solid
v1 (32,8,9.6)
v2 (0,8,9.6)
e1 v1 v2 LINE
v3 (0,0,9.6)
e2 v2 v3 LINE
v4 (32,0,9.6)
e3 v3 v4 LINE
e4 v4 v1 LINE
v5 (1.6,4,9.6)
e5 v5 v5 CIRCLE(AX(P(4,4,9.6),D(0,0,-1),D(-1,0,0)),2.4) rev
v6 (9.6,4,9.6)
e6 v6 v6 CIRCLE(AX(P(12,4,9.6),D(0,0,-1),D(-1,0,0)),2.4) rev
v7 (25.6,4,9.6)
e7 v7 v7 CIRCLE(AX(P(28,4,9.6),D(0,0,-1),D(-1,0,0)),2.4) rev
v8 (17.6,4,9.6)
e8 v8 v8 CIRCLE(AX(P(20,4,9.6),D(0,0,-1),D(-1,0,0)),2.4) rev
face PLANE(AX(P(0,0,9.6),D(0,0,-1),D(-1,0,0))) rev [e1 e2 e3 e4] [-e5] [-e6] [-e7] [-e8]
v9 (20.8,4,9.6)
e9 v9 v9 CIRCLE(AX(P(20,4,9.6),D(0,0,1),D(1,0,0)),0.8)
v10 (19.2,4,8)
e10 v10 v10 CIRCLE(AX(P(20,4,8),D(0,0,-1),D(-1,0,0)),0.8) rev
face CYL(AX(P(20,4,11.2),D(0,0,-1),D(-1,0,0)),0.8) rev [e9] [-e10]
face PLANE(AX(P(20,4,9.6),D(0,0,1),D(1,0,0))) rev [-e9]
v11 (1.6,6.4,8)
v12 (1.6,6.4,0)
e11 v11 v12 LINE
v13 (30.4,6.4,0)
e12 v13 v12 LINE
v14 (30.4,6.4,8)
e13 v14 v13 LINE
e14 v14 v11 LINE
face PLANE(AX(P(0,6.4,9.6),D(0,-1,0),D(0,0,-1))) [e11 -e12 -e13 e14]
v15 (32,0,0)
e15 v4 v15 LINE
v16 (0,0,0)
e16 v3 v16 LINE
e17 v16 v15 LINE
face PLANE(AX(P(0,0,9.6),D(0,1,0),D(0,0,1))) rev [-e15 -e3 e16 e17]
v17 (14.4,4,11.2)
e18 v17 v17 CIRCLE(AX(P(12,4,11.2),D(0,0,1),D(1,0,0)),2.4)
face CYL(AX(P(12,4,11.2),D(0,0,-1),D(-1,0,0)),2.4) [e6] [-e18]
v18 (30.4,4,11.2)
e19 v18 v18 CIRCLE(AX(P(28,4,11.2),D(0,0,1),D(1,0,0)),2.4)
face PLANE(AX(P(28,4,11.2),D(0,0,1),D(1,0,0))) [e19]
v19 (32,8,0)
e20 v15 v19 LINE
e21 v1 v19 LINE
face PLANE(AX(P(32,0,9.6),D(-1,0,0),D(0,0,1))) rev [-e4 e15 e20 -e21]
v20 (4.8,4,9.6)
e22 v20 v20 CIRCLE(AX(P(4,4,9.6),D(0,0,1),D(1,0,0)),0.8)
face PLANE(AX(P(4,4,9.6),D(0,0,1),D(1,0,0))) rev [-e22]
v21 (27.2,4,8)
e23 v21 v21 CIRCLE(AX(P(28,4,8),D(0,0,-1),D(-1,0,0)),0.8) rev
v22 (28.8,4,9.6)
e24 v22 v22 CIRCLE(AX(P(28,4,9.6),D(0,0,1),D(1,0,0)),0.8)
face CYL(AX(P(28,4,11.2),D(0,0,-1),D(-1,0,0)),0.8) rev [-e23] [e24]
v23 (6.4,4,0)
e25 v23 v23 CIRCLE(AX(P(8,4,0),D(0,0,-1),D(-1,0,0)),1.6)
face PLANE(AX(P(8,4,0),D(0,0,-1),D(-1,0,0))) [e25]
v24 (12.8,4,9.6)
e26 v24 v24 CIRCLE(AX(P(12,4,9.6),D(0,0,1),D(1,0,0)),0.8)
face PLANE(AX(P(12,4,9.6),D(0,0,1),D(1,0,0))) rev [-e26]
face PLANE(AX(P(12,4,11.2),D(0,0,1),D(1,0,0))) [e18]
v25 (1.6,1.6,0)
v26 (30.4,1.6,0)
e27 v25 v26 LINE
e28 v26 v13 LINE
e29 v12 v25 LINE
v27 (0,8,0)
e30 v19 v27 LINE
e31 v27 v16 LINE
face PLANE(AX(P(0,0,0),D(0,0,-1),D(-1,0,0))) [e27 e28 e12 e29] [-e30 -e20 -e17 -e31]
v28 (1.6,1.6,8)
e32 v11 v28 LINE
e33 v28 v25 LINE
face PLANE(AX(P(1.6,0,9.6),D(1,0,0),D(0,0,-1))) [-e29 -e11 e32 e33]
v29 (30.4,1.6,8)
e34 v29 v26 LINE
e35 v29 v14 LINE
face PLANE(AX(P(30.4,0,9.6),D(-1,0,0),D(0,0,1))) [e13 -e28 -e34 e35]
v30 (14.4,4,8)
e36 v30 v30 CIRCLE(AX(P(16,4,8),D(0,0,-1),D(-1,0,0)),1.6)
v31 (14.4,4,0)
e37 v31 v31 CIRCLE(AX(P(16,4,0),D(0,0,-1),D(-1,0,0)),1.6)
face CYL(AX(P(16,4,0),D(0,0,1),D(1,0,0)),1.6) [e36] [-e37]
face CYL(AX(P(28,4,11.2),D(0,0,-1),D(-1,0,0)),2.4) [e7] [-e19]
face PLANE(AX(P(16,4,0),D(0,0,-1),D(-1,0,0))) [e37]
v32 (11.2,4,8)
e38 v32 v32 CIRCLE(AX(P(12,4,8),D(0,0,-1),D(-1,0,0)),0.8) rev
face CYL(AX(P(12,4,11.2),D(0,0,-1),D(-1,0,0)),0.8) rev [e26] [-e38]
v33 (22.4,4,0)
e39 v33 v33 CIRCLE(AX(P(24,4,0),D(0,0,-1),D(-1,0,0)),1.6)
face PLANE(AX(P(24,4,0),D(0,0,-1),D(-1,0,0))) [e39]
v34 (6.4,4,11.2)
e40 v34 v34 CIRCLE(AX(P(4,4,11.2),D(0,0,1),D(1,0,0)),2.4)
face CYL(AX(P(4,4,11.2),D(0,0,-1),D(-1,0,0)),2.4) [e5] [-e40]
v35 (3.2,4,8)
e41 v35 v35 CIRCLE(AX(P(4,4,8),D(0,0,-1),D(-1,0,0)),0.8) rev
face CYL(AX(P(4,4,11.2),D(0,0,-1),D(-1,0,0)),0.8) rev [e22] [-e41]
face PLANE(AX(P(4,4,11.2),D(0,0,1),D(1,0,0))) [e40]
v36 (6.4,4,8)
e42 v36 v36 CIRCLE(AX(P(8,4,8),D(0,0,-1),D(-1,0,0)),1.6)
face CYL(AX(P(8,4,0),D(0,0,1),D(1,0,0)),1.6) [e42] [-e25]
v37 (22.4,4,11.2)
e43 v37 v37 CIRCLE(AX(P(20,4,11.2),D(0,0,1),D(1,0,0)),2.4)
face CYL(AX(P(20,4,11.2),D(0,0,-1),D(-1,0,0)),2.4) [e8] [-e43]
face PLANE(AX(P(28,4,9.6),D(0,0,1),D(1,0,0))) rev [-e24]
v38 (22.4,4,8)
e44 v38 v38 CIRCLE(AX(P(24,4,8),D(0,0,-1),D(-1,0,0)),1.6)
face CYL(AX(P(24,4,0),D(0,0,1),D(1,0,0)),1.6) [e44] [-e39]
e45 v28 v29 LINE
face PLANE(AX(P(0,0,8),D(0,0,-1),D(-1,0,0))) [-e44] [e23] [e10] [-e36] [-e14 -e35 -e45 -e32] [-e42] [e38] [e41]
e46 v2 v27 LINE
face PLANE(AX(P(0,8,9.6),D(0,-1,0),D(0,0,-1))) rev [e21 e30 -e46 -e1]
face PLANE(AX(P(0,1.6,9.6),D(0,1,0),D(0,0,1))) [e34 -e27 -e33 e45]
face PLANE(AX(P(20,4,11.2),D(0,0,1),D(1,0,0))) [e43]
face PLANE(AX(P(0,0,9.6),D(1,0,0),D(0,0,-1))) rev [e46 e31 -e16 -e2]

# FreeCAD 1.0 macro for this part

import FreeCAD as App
import Part
import Sketcher
from FreeCAD import Vector


def faces_at(feature, points):
    """Names of the faces that lie closest to the given points."""
    faces = feature.Shape.Faces
    near = lambda p: min(range(len(faces)), key=lambda i: faces[i].distToShape(Part.Vertex(*p))[0])
    return sorted({f"Face{near(p) + 1}" for p in points})


def add_polygon(sketch, points):
    """Adds a closed chain of lines whose ends are joined by coincident constraints."""
    first, n = sketch.GeometryCount, len(points)
    for a, b in zip(points, points[1:] + points[:1]):
        sketch.addGeometry(Part.LineSegment(App.Vector(*a, 0), App.Vector(*b, 0)), False)
    for i in range(n):
        sketch.addConstraint(Sketcher.Constraint("Coincident", first + i, 2, first + (i + 1) % n, 1))

doc = App.newDocument("Part")
body = doc.addObject("PartDesign::Body", "Body")

sketch1 = body.newObject("Sketcher::SketchObject", "Sketch")
sketch1.AttachmentSupport = (doc.getObject("XY_Plane"), [""])
sketch1.MapMode = "FlatFace"
add_polygon(sketch1, [(0, 8), (0, 0), (32, 0), (32, 8)])
sketch1.addConstraint(Sketcher.Constraint("Vertical", 0))
sketch1.addConstraint(Sketcher.Constraint("Horizontal", 1))
sketch1.addConstraint(Sketcher.Constraint("Vertical", 2))
sketch1.addConstraint(Sketcher.Constraint("Horizontal", 3))
sketch1.addConstraint(Sketcher.Constraint("Coincident", 0, 2, -1, 1))
sketch1.addConstraint(Sketcher.Constraint("DistanceX", 1, 1, 1, 2, 32.0))
sketch1.addConstraint(Sketcher.Constraint("DistanceY", 0, 2, 0, 1, 8.0))
pad1 = body.newObject("PartDesign::Pad", "Pad")
pad1.Profile = sketch1
pad1.Length = 9.6

sketch2 = body.newObject("Sketcher::SketchObject", "Sketch001")
sketch2.AttachmentSupport = (doc.getObject("XY_Plane"), [""])
sketch2.MapMode = "FlatFace"
sketch2.AttachmentOffset = App.Placement(Vector(0, 0, 9.6), App.Rotation())
sketch2.addGeometry(Part.Circle(Vector(4, 4, 0), Vector(0, 0, 1), 2.4), False)
sketch2.addConstraint(Sketcher.Constraint("Diameter", 0, 4.8))
sketch2.addConstraint(Sketcher.Constraint("DistanceX", -1, 1, 0, 3, 4.0))
sketch2.addConstraint(Sketcher.Constraint("DistanceY", -1, 1, 0, 3, 4.0))
pad2 = body.newObject("PartDesign::Pad", "Pad001")
pad2.Profile = sketch2
pad2.Length = 1.6
doc.recompute()

linearpattern = body.newObject("PartDesign::LinearPattern", "LinearPattern")
linearpattern.Originals = [pad2]
linearpattern.Direction = (doc.getObject("X_Axis"), [""])
linearpattern.Mode = "offset"
linearpattern.Offset = 8
linearpattern.Occurrences = 4
body.Tip = linearpattern
doc.recompute()

thickness = body.newObject("PartDesign::Thickness", "Thickness")
thickness.Base = (linearpattern, faces_at(linearpattern, [(16, 4, 0)]))
thickness.Value = 1.6
thickness.Reversed = True
thickness.Join = "Intersection"

sketch3 = body.newObject("Sketcher::SketchObject", "Sketch002")
sketch3.AttachmentSupport = (doc.getObject("XY_Plane"), [""])
sketch3.MapMode = "FlatFace"
sketch3.AttachmentOffset = App.Placement(Vector(0, 0, 8), App.Rotation())
sketch3.addGeometry(Part.Circle(Vector(8, 4, 0), Vector(0, 0, 1), 1.6), False)
sketch3.addConstraint(Sketcher.Constraint("Diameter", 0, 3.2))
sketch3.addConstraint(Sketcher.Constraint("DistanceX", -1, 1, 0, 3, 8.0))
sketch3.addConstraint(Sketcher.Constraint("DistanceY", -1, 1, 0, 3, 4.0))
pad3 = body.newObject("PartDesign::Pad", "Pad002")
pad3.Profile = sketch3
pad3.Length = 8
pad3.Reversed = True
doc.recompute()

linearpattern2 = body.newObject("PartDesign::LinearPattern", "LinearPattern001")
linearpattern2.Originals = [pad3]
linearpattern2.Direction = (doc.getObject("X_Axis"), [""])
linearpattern2.Mode = "offset"
linearpattern2.Offset = 8
linearpattern2.Occurrences = 3
body.Tip = linearpattern2

doc.recompute()
